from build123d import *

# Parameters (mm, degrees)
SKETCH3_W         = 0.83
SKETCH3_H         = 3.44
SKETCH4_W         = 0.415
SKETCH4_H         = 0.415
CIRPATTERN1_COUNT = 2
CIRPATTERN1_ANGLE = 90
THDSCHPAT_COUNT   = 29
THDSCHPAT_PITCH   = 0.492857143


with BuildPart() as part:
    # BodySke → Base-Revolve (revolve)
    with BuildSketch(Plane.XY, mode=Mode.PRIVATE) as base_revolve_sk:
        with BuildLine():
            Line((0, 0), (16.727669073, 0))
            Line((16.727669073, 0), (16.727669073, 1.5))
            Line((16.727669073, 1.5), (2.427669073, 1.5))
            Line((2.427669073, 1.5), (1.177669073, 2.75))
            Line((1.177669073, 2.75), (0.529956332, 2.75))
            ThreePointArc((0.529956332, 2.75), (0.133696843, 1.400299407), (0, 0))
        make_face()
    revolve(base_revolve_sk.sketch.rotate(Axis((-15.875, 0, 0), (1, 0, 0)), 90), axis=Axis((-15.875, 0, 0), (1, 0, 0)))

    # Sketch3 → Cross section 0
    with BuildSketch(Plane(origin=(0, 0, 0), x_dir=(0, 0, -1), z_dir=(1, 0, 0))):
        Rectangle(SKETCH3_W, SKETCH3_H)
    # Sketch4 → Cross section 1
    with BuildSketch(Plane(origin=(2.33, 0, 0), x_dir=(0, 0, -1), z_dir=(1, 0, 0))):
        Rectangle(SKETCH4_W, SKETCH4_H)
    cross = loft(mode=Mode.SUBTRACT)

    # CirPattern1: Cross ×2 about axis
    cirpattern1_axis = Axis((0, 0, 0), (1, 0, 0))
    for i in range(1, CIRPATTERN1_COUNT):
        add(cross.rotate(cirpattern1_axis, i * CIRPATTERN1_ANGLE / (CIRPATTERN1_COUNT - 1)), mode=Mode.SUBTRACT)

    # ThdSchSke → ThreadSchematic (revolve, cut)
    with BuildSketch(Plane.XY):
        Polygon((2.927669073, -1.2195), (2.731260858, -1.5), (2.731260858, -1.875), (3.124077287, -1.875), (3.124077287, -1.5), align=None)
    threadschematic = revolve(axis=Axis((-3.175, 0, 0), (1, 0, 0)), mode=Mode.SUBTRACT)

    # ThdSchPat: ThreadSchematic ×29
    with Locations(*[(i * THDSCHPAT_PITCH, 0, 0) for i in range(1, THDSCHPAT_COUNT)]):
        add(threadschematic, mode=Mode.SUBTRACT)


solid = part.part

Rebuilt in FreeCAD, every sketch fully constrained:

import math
import FreeCAD as App
import Part
import Sketcher
from FreeCAD import Vector
Q = App.Units.Quantity

doc = App.newDocument("Part")
body = doc.addObject("PartDesign::Body", "Body")

# Sketch on XY plane
sketch1 = doc.addObject("Sketcher::SketchObject", "Sketch")
body.addObject(sketch1)
sketch1.AttachmentSupport = (doc.XY_Plane, [""])
sketch1.MapMode = "FlatFace"
sketch1.addGeometry([
    Part.LineSegment(Vector(0, 0, 0), Vector(16.727669, 0, 0)),  # 0
    Part.LineSegment(Vector(16.727669, 0, 0), Vector(16.727669, 1.5, 0)),  # 1
    Part.LineSegment(Vector(16.727669, 1.5, 0), Vector(2.427669, 1.5, 0)),  # 2
    Part.LineSegment(Vector(2.427669, 1.5, 0), Vector(1.177669, 2.75, 0)),  # 3
    Part.LineSegment(Vector(1.177669, 2.75, 0), Vector(0.529956, 2.75, 0)),  # 4
    Part.ArcOfCircle(Part.Circle(Vector(7.4, 0, 0), Vector(0, 0, 1), 7.4), math.radians(158.184338), math.radians(180)),  # 5
], False)
sketch1.addConstraint([
    Sketcher.Constraint("Coincident", 0, 2, 1, 1),
    Sketcher.Constraint("Coincident", 1, 2, 2, 1),
    Sketcher.Constraint("Coincident", 2, 2, 3, 1),
    Sketcher.Constraint("Coincident", 3, 2, 4, 1),
    Sketcher.Constraint("Coincident", 4, 2, 5, 1),
    Sketcher.Constraint("Coincident", 5, 2, 0, 1),
    Sketcher.Constraint("Horizontal", 0),
    Sketcher.Constraint("Vertical", 1),
    Sketcher.Constraint("Horizontal", 2),
    Sketcher.Constraint("Horizontal", 4),
    Sketcher.Constraint("Coincident", 5, 2, -1, 1),
    Sketcher.Constraint("PointOnObject", 5, 3, -1),
    Sketcher.Constraint("Radius", 5, 7.4),
    Sketcher.Constraint("Angle", 3, Q("135 deg")),
    Sketcher.Constraint("DistanceX", 2, 2, 2, 1, 14.3),
    Sketcher.Constraint("DistanceY", 1, 1, 1, 2, 1.5),
    Sketcher.Constraint("DistanceY", -1, 1, 3, 2, 2.75),
    Sketcher.Constraint("DistanceX", 0, 1, 0, 2, 16.727669),
])
revolution = doc.addObject("PartDesign::Revolution", "Revolution")
body.addObject(revolution)
revolution.Profile = sketch1
revolution.ReferenceAxis = (sketch1, ["H_Axis"])
revolution.Angle = 360

# Sketch on YZ plane
sketch2 = doc.addObject("Sketcher::SketchObject", "Sketch001")
body.addObject(sketch2)
sketch2.AttachmentSupport = (doc.YZ_Plane, [""])
sketch2.MapMode = "FlatFace"
sketch2.addGeometry([
    Part.LineSegment(Vector(1.72, 0.415, 0), Vector(-1.72, 0.415, 0)),
    Part.LineSegment(Vector(-1.72, 0.415, 0), Vector(-1.72, -0.415, 0)),
    Part.LineSegment(Vector(-1.72, -0.415, 0), Vector(1.72, -0.415, 0)),
    Part.LineSegment(Vector(1.72, -0.415, 0), Vector(1.72, 0.415, 0)),
], False)
sketch2.addConstraint([
    Sketcher.Constraint("Coincident", 0, 2, 1, 1),
    Sketcher.Constraint("Coincident", 1, 2, 2, 1),
    Sketcher.Constraint("Coincident", 2, 2, 3, 1),
    Sketcher.Constraint("Coincident", 3, 2, 0, 1),
    Sketcher.Constraint("Horizontal", 0),
    Sketcher.Constraint("Vertical", 1),
    Sketcher.Constraint("Horizontal", 2),
    Sketcher.Constraint("Vertical", 3),
    Sketcher.Constraint("Symmetric", 0, 2, 2, 2, -1, 1),
    Sketcher.Constraint("DistanceX", 0, 2, 0, 1, 3.44),
    Sketcher.Constraint("DistanceY", 1, 2, 1, 1, 0.83),
])

# Sketch on YZ plane
sketch3 = doc.addObject("Sketcher::SketchObject", "Sketch002")
body.addObject(sketch3)
sketch3.AttachmentSupport = (doc.YZ_Plane, [""])
sketch3.MapMode = "FlatFace"
sketch3.AttachmentOffset = App.Placement(Vector(0, 0, 2.33), App.Rotation())
sketch3.addGeometry([
    Part.LineSegment(Vector(0.2075, 0.2075, 0), Vector(-0.2075, 0.2075, 0)),
    Part.LineSegment(Vector(-0.2075, 0.2075, 0), Vector(-0.2075, -0.2075, 0)),
    Part.LineSegment(Vector(-0.2075, -0.2075, 0), Vector(0.2075, -0.2075, 0)),
    Part.LineSegment(Vector(0.2075, -0.2075, 0), Vector(0.2075, 0.2075, 0)),
], False)
sketch3.addConstraint([
    Sketcher.Constraint("Coincident", 0, 2, 1, 1),
    Sketcher.Constraint("Coincident", 1, 2, 2, 1),
    Sketcher.Constraint("Coincident", 2, 2, 3, 1),
    Sketcher.Constraint("Coincident", 3, 2, 0, 1),
    Sketcher.Constraint("Horizontal", 0),
    Sketcher.Constraint("Vertical", 1),
    Sketcher.Constraint("Horizontal", 2),
    Sketcher.Constraint("Vertical", 3),
    Sketcher.Constraint("Symmetric", 0, 2, 2, 2, -1, 1),
    Sketcher.Constraint("Equal", 2, 1),
    Sketcher.Constraint("DistanceX", 0, 2, 0, 1, 0.415),
])

subtractiveloft = doc.addObject("PartDesign::SubtractiveLoft", "SubtractiveLoft")
body.addObject(subtractiveloft)
subtractiveloft.Profile = sketch2
subtractiveloft.Sections = [sketch3]
doc.recompute()

polarpattern = doc.addObject("PartDesign::PolarPattern", "PolarPattern")
body.addObject(polarpattern)
polarpattern.Originals = [subtractiveloft]
polarpattern.Axis = (doc.X_Axis, [""])
polarpattern.Angle = 90
polarpattern.Occurrences = 2
body.Tip = polarpattern

# Sketch on XY plane
sketch4 = doc.addObject("Sketcher::SketchObject", "Sketch003")
body.addObject(sketch4)
sketch4.AttachmentSupport = (doc.XY_Plane, [""])
sketch4.MapMode = "FlatFace"
sketch4.addGeometry([
    Part.LineSegment(Vector(2.927669, -1.2195, 0), Vector(2.731261, -1.5, 0)),  # 0
    Part.LineSegment(Vector(2.731261, -1.5, 0), Vector(2.731261, -1.875, 0)),  # 1
    Part.LineSegment(Vector(2.731261, -1.875, 0), Vector(3.124077, -1.875, 0)),  # 2
    Part.LineSegment(Vector(3.124077, -1.875, 0), Vector(3.124077, -1.5, 0)),  # 3
    Part.LineSegment(Vector(3.124077, -1.5, 0), Vector(2.927669, -1.2195, 0)),  # 4
], False)
sketch4.addConstraint([
    Sketcher.Constraint("Coincident", 0, 2, 1, 1),
    Sketcher.Constraint("Coincident", 1, 2, 2, 1),
    Sketcher.Constraint("Coincident", 2, 2, 3, 1),
    Sketcher.Constraint("Coincident", 3, 2, 4, 1),
    Sketcher.Constraint("Coincident", 4, 2, 0, 1),
    Sketcher.Constraint("Vertical", 1),
    Sketcher.Constraint("Horizontal", 2),
    Sketcher.Constraint("Vertical", 3),
    Sketcher.Constraint("Horizontal", 0, 2, 3, 2),
    Sketcher.Constraint("Equal", 0, 4),
    Sketcher.Constraint("Angle", 0, Q("-125 deg")),
    Sketcher.Constraint("DistanceY", 0, 2, -1, 1, 1.5),
    Sketcher.Constraint("DistanceY", 1, 2, 1, 1, 0.375),
    Sketcher.Constraint("DistanceY", 4, 2, -1, 1, 1.2195),
    Sketcher.Constraint("DistanceX", -1, 1, 0, 2, 2.731261),
])
groove = doc.addObject("PartDesign::Groove", "Groove")
body.addObject(groove)
groove.Profile = sketch4
groove.ReferenceAxis = (sketch4, ["H_Axis"])
groove.Angle = 360
doc.recompute()

linearpattern = doc.addObject("PartDesign::LinearPattern", "LinearPattern")
body.addObject(linearpattern)
linearpattern.Originals = [groove]
linearpattern.Direction = (doc.X_Axis, [""])
linearpattern.Mode = "offset"
linearpattern.Offset = 0.492857
linearpattern.Occurrences = 29
body.Tip = linearpattern

doc.recompute()
